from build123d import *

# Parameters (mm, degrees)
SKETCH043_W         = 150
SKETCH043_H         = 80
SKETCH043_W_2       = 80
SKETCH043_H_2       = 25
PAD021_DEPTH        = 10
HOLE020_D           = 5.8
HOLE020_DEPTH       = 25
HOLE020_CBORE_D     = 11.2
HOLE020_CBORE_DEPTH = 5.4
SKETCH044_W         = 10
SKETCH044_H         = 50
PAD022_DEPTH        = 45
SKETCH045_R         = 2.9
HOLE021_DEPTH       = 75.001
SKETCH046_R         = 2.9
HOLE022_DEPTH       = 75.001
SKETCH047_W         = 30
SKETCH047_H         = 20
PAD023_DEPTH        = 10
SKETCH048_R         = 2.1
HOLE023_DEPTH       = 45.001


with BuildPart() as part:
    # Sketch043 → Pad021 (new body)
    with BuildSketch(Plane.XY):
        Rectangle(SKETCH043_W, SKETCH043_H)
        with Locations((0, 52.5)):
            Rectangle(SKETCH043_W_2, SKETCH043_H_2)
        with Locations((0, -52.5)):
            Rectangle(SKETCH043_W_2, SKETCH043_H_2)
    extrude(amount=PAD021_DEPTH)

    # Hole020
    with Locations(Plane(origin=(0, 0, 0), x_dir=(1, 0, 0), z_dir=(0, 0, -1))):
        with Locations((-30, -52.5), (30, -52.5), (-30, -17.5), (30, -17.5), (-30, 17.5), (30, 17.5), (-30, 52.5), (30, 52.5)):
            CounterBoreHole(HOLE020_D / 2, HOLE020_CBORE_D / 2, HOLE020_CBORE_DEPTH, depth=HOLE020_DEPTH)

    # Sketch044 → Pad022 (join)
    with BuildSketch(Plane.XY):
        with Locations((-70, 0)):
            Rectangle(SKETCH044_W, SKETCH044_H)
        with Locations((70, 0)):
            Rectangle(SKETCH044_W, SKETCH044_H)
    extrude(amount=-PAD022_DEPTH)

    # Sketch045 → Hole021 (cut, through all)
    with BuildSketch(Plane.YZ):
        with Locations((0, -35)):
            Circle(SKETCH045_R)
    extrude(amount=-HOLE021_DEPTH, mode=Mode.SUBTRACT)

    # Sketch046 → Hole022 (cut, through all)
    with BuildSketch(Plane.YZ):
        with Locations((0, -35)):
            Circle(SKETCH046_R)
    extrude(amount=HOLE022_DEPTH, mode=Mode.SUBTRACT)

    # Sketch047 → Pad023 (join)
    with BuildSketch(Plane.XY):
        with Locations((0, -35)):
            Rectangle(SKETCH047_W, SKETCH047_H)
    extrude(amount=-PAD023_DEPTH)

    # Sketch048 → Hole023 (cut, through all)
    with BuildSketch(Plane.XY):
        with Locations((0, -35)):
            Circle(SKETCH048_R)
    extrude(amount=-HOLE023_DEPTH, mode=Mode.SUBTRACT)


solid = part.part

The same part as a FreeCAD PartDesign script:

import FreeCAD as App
import Part
import Sketcher

V = App.Vector
Q = App.Units.Quantity


def add_polygon(sketch, points):
    """Adds a closed chain of lines whose ends are joined by coincident constraints."""
    first, n = sketch.GeometryCount, len(points)
    for a, b in zip(points, points[1:] + points[:1]):
        sketch.addGeometry(Part.LineSegment(App.Vector(*a, 0), App.Vector(*b, 0)), False)
    for i in range(n):
        sketch.addConstraint(Sketcher.Constraint("Coincident", first + i, 2, first + (i + 1) % n, 1))

doc = App.newDocument("Part")
body = doc.addObject("PartDesign::Body", "Body")

# Sketch on XY plane
sketch1 = doc.addObject("Sketcher::SketchObject", "Sketch")
body.addObject(sketch1)
sketch1.AttachmentSupport = (doc.XY_Plane, [""])
sketch1.MapMode = "FlatFace"
add_polygon(sketch1, [(-75, 40), (-75, -40), (-40, -40), (-40, -65), (40, -65), (40, -40), (75, -40), (75, 40), (40, 40), (40, 65), (-40, 65), (-40, 40)])  # lines 0-11
sketch1.addConstraint(Sketcher.Constraint("Vertical", 0))
sketch1.addConstraint(Sketcher.Constraint("Horizontal", 1))
sketch1.addConstraint(Sketcher.Constraint("Vertical", 2))
sketch1.addConstraint(Sketcher.Constraint("Horizontal", 3))
sketch1.addConstraint(Sketcher.Constraint("Vertical", 4))
sketch1.addConstraint(Sketcher.Constraint("Horizontal", 5))
sketch1.addConstraint(Sketcher.Constraint("Vertical", 6))
sketch1.addConstraint(Sketcher.Constraint("Horizontal", 7))
sketch1.addConstraint(Sketcher.Constraint("Vertical", 8))
sketch1.addConstraint(Sketcher.Constraint("Horizontal", 9))
sketch1.addConstraint(Sketcher.Constraint("Vertical", 10))
sketch1.addConstraint(Sketcher.Constraint("Horizontal", 11))
sketch1.addConstraint(Sketcher.Constraint("Symmetric", 0, 2, 6, 2, -1, 1))
sketch1.addConstraint(Sketcher.Constraint("Symmetric", 2, 2, 8, 2, -1, 1))
sketch1.addConstraint(Sketcher.Constraint("Symmetric", 4, 2, 10, 2, -1, 1))
sketch1.addConstraint(Sketcher.Constraint("Symmetric", 1, 2, 4, 2, -2))
sketch1.addConstraint(Sketcher.Constraint("Equal", 9, 0))
sketch1.addConstraint(Sketcher.Constraint("DistanceX", 1, 1, 1, 2, Q("35 mm")))
sketch1.addConstraint(Sketcher.Constraint("DistanceX", 3, 1, 3, 2, Q("80 mm")))
sketch1.addConstraint(Sketcher.Constraint("DistanceY", 2, 2, 2, 1, Q("25 mm")))
pad1 = doc.addObject("PartDesign::Pad", "Pad")
body.addObject(pad1)
pad1.Profile = sketch1
pad1.Length = 10

# Sketch on XY plane
sketch2 = doc.addObject("Sketcher::SketchObject", "Sketch001")
body.addObject(sketch2)
sketch2.AttachmentSupport = (doc.XY_Plane, [""])
sketch2.MapMode = "FlatFace"
sketch2.addGeometry(Part.Circle(V(-30, 52.5, 0), V(0, 0, 1), 2.9), False)
sketch2.addGeometry(Part.Circle(V(30, 52.5, 0), V(0, 0, 1), 2.9), False)
sketch2.addGeometry(Part.Circle(V(-30, 17.5, 0), V(0, 0, 1), 2.9), False)
sketch2.addGeometry(Part.Circle(V(30, 17.5, 0), V(0, 0, 1), 2.9), False)
sketch2.addGeometry(Part.Circle(V(-30, -17.5, 0), V(0, 0, 1), 2.9), False)
sketch2.addGeometry(Part.Circle(V(30, -17.5, 0), V(0, 0, 1), 2.9), False)
sketch2.addGeometry(Part.Circle(V(-30, -52.5, 0), V(0, 0, 1), 2.9), False)
sketch2.addGeometry(Part.Circle(V(30, -52.5, 0), V(0, 0, 1), 2.9), False)
sketch2.addConstraint(Sketcher.Constraint("Equal", 0, 1))
sketch2.addConstraint(Sketcher.Constraint("Equal", 1, 2))
sketch2.addConstraint(Sketcher.Constraint("Equal", 2, 3))
sketch2.addConstraint(Sketcher.Constraint("Equal", 3, 4))
sketch2.addConstraint(Sketcher.Constraint("Equal", 4, 5))
sketch2.addConstraint(Sketcher.Constraint("Equal", 5, 6))
sketch2.addConstraint(Sketcher.Constraint("Equal", 6, 7))
sketch2.addConstraint(Sketcher.Constraint("Symmetric", 3, 3, 4, 3, -1, 1))
sketch2.addConstraint(Sketcher.Constraint("Symmetric", 2, 3, 5, 3, -1, 1))
sketch2.addConstraint(Sketcher.Constraint("Symmetric", 1, 3, 6, 3, -1, 1))
sketch2.addConstraint(Sketcher.Constraint("Symmetric", 0, 3, 7, 3, -1, 1))
sketch2.addConstraint(Sketcher.Constraint("Symmetric", 0, 3, 1, 3, -2))
sketch2.addConstraint(Sketcher.Constraint("Symmetric", 2, 3, 3, 3, -2))
sketch2.addConstraint(Sketcher.Constraint("Vertical", 0, 3, 2, 3))
sketch2.addConstraint(Sketcher.Constraint("Diameter", 0, Q("5.8 mm")))
sketch2.addConstraint(Sketcher.Constraint("DistanceX", 0, 3, -1, 1, Q("30 mm")))
sketch2.addConstraint(Sketcher.Constraint("DistanceY", 2, 3, 0, 3, Q("35 mm")))
sketch2.addConstraint(Sketcher.Constraint("DistanceY", 4, 3, 2, 3, Q("35 mm")))
doc.recompute()
hole = doc.addObject("PartDesign::Hole", "Hole")
body.addObject(hole)
hole.Profile = sketch2
hole.ThreadType = "None"
hole.Diameter = 5.8
hole.DepthType = "Dimension"
hole.Depth = 25
hole.DrillPoint = "Flat"
hole.HoleCutType = "Counterbore"
hole.HoleCutDiameter = 11.2
hole.HoleCutDepth = 5.4
hole.Reversed = True

# Sketch on XY plane
sketch3 = doc.addObject("Sketcher::SketchObject", "Sketch002")
body.addObject(sketch3)
sketch3.AttachmentSupport = (doc.XY_Plane, [""])
sketch3.MapMode = "FlatFace"
add_polygon(sketch3, [(-75, 25), (-75, -25), (-65, -25), (-65, 25)])  # lines 0-3
add_polygon(sketch3, [(65, 25), (65, -25), (75, -25), (75, 25)])  # lines 4-7
sketch3.addConstraint(Sketcher.Constraint("Vertical", 0))
sketch3.addConstraint(Sketcher.Constraint("Horizontal", 1))
sketch3.addConstraint(Sketcher.Constraint("Vertical", 2))
sketch3.addConstraint(Sketcher.Constraint("Horizontal", 3))
sketch3.addConstraint(Sketcher.Constraint("Vertical", 4))
sketch3.addConstraint(Sketcher.Constraint("Horizontal", 5))
sketch3.addConstraint(Sketcher.Constraint("Vertical", 6))
sketch3.addConstraint(Sketcher.Constraint("Horizontal", 7))
sketch3.addConstraint(Sketcher.Constraint("Symmetric", 2, 2, 4, 2, -1, 1))
sketch3.addConstraint(Sketcher.Constraint("Symmetric", 0, 2, 6, 2, -1, 1))
sketch3.addConstraint(Sketcher.Constraint("Horizontal", 1, 2, 4, 2))
sketch3.addConstraint(Sketcher.Constraint("DistanceX", 1, 1, 1, 2, Q("10 mm")))
sketch3.addConstraint(Sketcher.Constraint("DistanceY", 0, 2, 0, 1, Q("50 mm")))
sketch3.addConstraint(Sketcher.Constraint("DistanceX", 0, 2, -1, 1, Q("75 mm")))
pad2 = doc.addObject("PartDesign::Pad", "Pad001")
body.addObject(pad2)
pad2.Profile = sketch3
pad2.Length = 45
pad2.Reversed = True

# Sketch on YZ plane
sketch4 = doc.addObject("Sketcher::SketchObject", "Sketch003")
body.addObject(sketch4)
sketch4.AttachmentSupport = (doc.YZ_Plane, [""])
sketch4.MapMode = "FlatFace"
sketch4.addGeometry(Part.Circle(V(0, -35, 0), V(0, 0, 1), 2.9), False)
sketch4.addConstraint(Sketcher.Constraint("PointOnObject", 0, 3, -2))
sketch4.addConstraint(Sketcher.Constraint("Diameter", 0, Q("5.8 mm")))
sketch4.addConstraint(Sketcher.Constraint("DistanceY", 0, 3, -1, 1, Q("35 mm")))
pocket1 = doc.addObject("PartDesign::Pocket", "Pocket")
body.addObject(pocket1)
pocket1.Profile = sketch4
pocket1.Type = "ThroughAll"

# Sketch on YZ plane
sketch5 = doc.addObject("Sketcher::SketchObject", "Sketch004")
body.addObject(sketch5)
sketch5.AttachmentSupport = (doc.YZ_Plane, [""])
sketch5.MapMode = "FlatFace"
sketch5.addGeometry(Part.Circle(V(0, -35, 0), V(0, 0, 1), 2.9), False)
sketch5.addConstraint(Sketcher.Constraint("PointOnObject", 0, 3, -2))
sketch5.addConstraint(Sketcher.Constraint("Diameter", 0, Q("5.8 mm")))
sketch5.addConstraint(Sketcher.Constraint("DistanceY", 0, 3, -1, 1, Q("35 mm")))
pocket2 = doc.addObject("PartDesign::Pocket", "Pocket001")
body.addObject(pocket2)
pocket2.Profile = sketch5
pocket2.Type = "ThroughAll"
pocket2.Reversed = True

# Sketch on XY plane
sketch6 = doc.addObject("Sketcher::SketchObject", "Sketch005")
body.addObject(sketch6)
sketch6.AttachmentSupport = (doc.XY_Plane, [""])
sketch6.MapMode = "FlatFace"
add_polygon(sketch6, [(-15, -25), (-15, -45), (15, -45), (15, -25)])  # lines 0-3
sketch6.addConstraint(Sketcher.Constraint("Vertical", 0))
sketch6.addConstraint(Sketcher.Constraint("Horizontal", 1))
sketch6.addConstraint(Sketcher.Constraint("Vertical", 2))
sketch6.addConstraint(Sketcher.Constraint("Horizontal", 3))
sketch6.addConstraint(Sketcher.Constraint("DistanceX", 1, 1, 1, 2, Q("30 mm")))
sketch6.addConstraint(Sketcher.Constraint("DistanceY", 0, 2, 0, 1, Q("20 mm")))
sketch6.addConstraint(Sketcher.Constraint("DistanceX", 0, 2, -1, 1, Q("15 mm")))
sketch6.addConstraint(Sketcher.Constraint("DistanceY", 0, 2, -1, 1, Q("45 mm")))
pad3 = doc.addObject("PartDesign::Pad", "Pad002")
body.addObject(pad3)
pad3.Profile = sketch6
pad3.Length = 10
pad3.Reversed = True

# Sketch on XY plane
sketch7 = doc.addObject("Sketcher::SketchObject", "Sketch006")
body.addObject(sketch7)
sketch7.AttachmentSupport = (doc.XY_Plane, [""])
sketch7.MapMode = "FlatFace"
sketch7.addGeometry(Part.Circle(V(0, -35, 0), V(0, 0, 1), 2.1), False)
sketch7.addConstraint(Sketcher.Constraint("PointOnObject", 0, 3, -2))
sketch7.addConstraint(Sketcher.Constraint("Diameter", 0, Q("4.2 mm")))
sketch7.addConstraint(Sketcher.Constraint("DistanceY", 0, 3, -1, 1, Q("35 mm")))
pocket3 = doc.addObject("PartDesign::Pocket", "Pocket002")
body.addObject(pocket3)
pocket3.Profile = sketch7
pocket3.Type = "ThroughAll"

doc.recompute()
